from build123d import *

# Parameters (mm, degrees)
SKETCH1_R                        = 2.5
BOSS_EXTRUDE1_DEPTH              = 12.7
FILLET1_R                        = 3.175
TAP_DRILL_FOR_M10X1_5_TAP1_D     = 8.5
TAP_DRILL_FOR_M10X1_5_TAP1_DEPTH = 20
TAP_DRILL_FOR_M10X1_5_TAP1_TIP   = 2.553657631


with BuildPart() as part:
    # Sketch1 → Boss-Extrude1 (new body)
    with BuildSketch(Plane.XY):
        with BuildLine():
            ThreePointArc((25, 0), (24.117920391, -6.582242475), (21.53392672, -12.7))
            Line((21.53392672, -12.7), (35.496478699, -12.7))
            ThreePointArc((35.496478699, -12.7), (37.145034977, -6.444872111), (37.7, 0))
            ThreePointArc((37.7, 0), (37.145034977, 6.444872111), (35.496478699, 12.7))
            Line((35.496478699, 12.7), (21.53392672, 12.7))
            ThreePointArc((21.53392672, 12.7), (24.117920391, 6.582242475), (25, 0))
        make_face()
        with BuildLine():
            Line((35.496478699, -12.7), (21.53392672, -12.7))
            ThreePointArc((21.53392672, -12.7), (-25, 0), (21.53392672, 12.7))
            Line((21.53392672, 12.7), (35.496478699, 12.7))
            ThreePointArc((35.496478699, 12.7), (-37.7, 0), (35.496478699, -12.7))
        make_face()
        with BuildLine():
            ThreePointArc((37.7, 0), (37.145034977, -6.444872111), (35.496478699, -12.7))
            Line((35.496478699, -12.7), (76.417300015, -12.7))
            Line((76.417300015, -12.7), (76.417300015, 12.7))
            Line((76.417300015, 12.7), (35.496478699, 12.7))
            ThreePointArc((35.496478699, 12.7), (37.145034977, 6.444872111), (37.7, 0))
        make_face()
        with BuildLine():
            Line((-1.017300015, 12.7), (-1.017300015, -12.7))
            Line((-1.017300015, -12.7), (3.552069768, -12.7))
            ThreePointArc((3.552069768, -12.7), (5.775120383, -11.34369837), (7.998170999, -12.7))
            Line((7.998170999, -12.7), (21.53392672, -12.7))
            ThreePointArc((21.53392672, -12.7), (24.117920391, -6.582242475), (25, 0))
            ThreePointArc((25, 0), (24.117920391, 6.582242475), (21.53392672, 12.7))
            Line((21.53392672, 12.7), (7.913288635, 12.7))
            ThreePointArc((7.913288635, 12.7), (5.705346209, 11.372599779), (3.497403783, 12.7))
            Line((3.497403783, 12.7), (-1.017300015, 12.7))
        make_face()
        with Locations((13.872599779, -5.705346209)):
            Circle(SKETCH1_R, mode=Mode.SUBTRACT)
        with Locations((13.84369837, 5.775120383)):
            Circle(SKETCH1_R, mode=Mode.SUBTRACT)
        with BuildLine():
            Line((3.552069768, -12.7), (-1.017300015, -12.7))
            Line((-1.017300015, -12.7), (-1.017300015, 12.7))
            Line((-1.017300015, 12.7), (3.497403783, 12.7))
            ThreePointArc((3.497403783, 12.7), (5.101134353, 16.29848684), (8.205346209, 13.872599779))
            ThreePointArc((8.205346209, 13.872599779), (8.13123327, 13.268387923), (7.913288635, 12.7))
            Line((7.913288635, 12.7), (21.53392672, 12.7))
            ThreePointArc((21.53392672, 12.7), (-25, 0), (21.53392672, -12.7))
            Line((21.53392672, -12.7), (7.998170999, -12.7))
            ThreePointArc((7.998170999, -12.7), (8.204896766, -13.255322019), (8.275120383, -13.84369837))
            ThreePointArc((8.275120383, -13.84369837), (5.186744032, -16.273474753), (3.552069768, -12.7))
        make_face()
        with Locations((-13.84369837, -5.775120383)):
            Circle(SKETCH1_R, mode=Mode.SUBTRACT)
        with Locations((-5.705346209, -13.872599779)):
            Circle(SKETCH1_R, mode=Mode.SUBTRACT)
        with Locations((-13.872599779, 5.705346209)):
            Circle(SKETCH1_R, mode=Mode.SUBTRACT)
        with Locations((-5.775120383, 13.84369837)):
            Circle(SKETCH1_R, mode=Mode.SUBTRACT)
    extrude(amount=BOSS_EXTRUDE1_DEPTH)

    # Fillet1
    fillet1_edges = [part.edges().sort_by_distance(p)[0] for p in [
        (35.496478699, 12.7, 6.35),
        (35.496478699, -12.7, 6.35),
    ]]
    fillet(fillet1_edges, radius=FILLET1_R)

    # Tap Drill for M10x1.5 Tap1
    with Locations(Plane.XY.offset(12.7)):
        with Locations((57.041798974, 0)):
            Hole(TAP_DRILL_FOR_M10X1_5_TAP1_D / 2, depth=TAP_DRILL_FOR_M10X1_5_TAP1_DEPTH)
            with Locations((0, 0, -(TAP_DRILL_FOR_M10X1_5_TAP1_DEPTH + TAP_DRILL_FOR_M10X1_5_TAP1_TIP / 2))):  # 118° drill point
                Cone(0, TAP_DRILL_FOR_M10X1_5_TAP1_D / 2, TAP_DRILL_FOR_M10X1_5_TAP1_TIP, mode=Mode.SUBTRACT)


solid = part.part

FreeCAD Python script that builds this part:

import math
import FreeCAD as App
import Part
import Sketcher


def edges_at(feature, points):
    """Names of the edges that pass closest to the given points."""
    edges = feature.Shape.Edges
    near = lambda p: min(range(len(edges)), key=lambda i: edges[i].distToShape(Part.Vertex(*p))[0])
    return sorted({f"Edge{near(p) + 1}" for p in points})

doc = App.newDocument("Part")
body = doc.addObject("PartDesign::Body", "Body")

sketch1 = body.newObject("Sketcher::SketchObject", "Sketch")
sketch1.AttachmentSupport = (doc.getObject("XY_Plane"), [""])
sketch1.MapMode = "FlatFace"
sketch1.addGeometry(Part.LineSegment(App.Vector(76.4, 12.7, 0), App.Vector(35.5, 12.7, 0)), False)
sketch1.addGeometry(Part.ArcOfCircle(Part.Circle(App.Vector(0, 0, 0), App.Vector(0, 0, 1), 37.7), math.radians(20), math.radians(340)), False)
sketch1.addGeometry(Part.LineSegment(App.Vector(35.5, -12.7, 0), App.Vector(76.4, -12.7, 0)), False)
sketch1.addGeometry(Part.LineSegment(App.Vector(76.4, -12.7, 0), App.Vector(76.4, 12.7, 0)), False)
sketch1.addGeometry(Part.Circle(App.Vector(-5.7, -13.9, 0), App.Vector(0, 0, 1), 2.5), False)
sketch1.addGeometry(Part.Circle(App.Vector(-13.8, -5.8, 0), App.Vector(0, 0, 1), 2.5), False)
sketch1.addGeometry(Part.ArcOfCircle(Part.Circle(App.Vector(5.8, -13.8, 0), App.Vector(0, 0, 1), 2.5), math.radians(27), math.radians(153)), False)
sketch1.addGeometry(Part.ArcOfCircle(Part.Circle(App.Vector(5.8, -13.8, 0), App.Vector(0, 0, 1), 2.5), math.radians(0), math.radians(27)), False)
sketch1.addGeometry(Part.ArcOfCircle(Part.Circle(App.Vector(5.8, -13.8, 0), App.Vector(0, 0, 1), 2.5), math.radians(153), math.radians(360)), False)
sketch1.addGeometry(Part.Circle(App.Vector(13.9, -5.7, 0), App.Vector(0, 0, 1), 2.5), False)
sketch1.addGeometry(Part.Circle(App.Vector(-13.9, 5.7, 0), App.Vector(0, 0, 1), 2.5), False)
sketch1.addGeometry(Part.Circle(App.Vector(-5.8, 13.8, 0), App.Vector(0, 0, 1), 2.5), False)
sketch1.addGeometry(Part.Circle(App.Vector(13.8, 5.8, 0), App.Vector(0, 0, 1), 2.5), False)
sketch1.addGeometry(Part.ArcOfCircle(Part.Circle(App.Vector(5.7, 13.9, 0), App.Vector(0, 0, 1), 2.5), math.radians(-152), math.radians(-28)), False)
sketch1.addGeometry(Part.ArcOfCircle(Part.Circle(App.Vector(5.7, 13.9, 0), App.Vector(0, 0, 1), 2.5), math.radians(0), math.radians(208)), False)
sketch1.addGeometry(Part.ArcOfCircle(Part.Circle(App.Vector(5.7, 13.9, 0), App.Vector(0, 0, 1), 2.5), math.radians(-28), math.radians(0)), False)
sketch1.addConstraint(Sketcher.Constraint("Coincident", 0, 2, 1, 1))
sketch1.addConstraint(Sketcher.Constraint("Coincident", 1, 2, 2, 1))
sketch1.addConstraint(Sketcher.Constraint("Coincident", 2, 2, 3, 1))
sketch1.addConstraint(Sketcher.Constraint("Coincident", 3, 2, 0, 1))
sketch1.addConstraint(Sketcher.Constraint("Tangent", 6, 1, 7, 2))
sketch1.addConstraint(Sketcher.Constraint("Tangent", 7, 1, 8, 2))
sketch1.addConstraint(Sketcher.Constraint("Tangent", 8, 1, 6, 2))
sketch1.addConstraint(Sketcher.Constraint("Tangent", 13, 1, 14, 2))
sketch1.addConstraint(Sketcher.Constraint("Tangent", 14, 1, 15, 2))
sketch1.addConstraint(Sketcher.Constraint("Tangent", 15, 1, 13, 2))
sketch1.addConstraint(Sketcher.Constraint("Horizontal", 0))
sketch1.addConstraint(Sketcher.Constraint("Horizontal", 2))
sketch1.addConstraint(Sketcher.Constraint("Vertical", 3))
sketch1.addConstraint(Sketcher.Constraint("Coincident", 1, 3, -1, 1))
sketch1.addConstraint(Sketcher.Constraint("Equal", 4, 5))
sketch1.addConstraint(Sketcher.Constraint("Equal", 5, 6))
sketch1.addConstraint(Sketcher.Constraint("Equal", 8, 9))
sketch1.addConstraint(Sketcher.Constraint("Equal", 9, 10))
sketch1.addConstraint(Sketcher.Constraint("Equal", 10, 11))
sketch1.addConstraint(Sketcher.Constraint("Equal", 11, 12))
sketch1.addConstraint(Sketcher.Constraint("Equal", 12, 13))
sketch1.addConstraint(Sketcher.Constraint("Symmetric", 9, 3, 10, 3, -1, 1))
sketch1.addConstraint(Sketcher.Constraint("Symmetric", 6, 3, 11, 3, -1, 1))
sketch1.addConstraint(Sketcher.Constraint("Symmetric", 5, 3, 12, 3, -1, 1))
sketch1.addConstraint(Sketcher.Constraint("Symmetric", 4, 3, 13, 3, -1, 1))
sketch1.addConstraint(Sketcher.Constraint("Horizontal", 2, 2, 6, 1))
sketch1.addConstraint(Sketcher.Constraint("Horizontal", 8, 3, 7, 1))
sketch1.addConstraint(Sketcher.Constraint("Horizontal", 6, 1, 8, 1))
sketch1.addConstraint(Sketcher.Constraint("Horizontal", 3, 2, 13, 1))
sketch1.addConstraint(Sketcher.Constraint("Horizontal", 15, 3, 14, 1))
sketch1.addConstraint(Sketcher.Constraint("Horizontal", 13, 1, 15, 1))
sketch1.addConstraint(Sketcher.Constraint("Vertical", 0, 2, 1, 2))
sketch1.addConstraint(Sketcher.Constraint("Diameter", 4, 5.0))
sketch1.addConstraint(Sketcher.Constraint("Radius", 1, 37.7))
sketch1.addConstraint(Sketcher.Constraint("DistanceY", 3, 1, 3, 2, 25.4))
sketch1.addConstraint(Sketcher.Constraint("DistanceX", 0, 2, 0, 1, 40.920821))
sketch1.addConstraint(Sketcher.Constraint("DistanceY", 4, 3, -1, 1, 13.8726))
sketch1.addConstraint(Sketcher.Constraint("DistanceX", 5, 3, -1, 1, 13.843698))
sketch1.addConstraint(Sketcher.Constraint("DistanceY", 6, 3, -1, 1, 13.843698))
sketch1.addConstraint(Sketcher.Constraint("DistanceX", -1, 1, 9, 3, 13.8726))
sketch1.addConstraint(Sketcher.Constraint("DistanceY", 5, 3, -1, 1, 5.77512))
sketch1.addConstraint(Sketcher.Constraint("DistanceX", -1, 1, 6, 3, 5.77512))
sketch1.addConstraint(Sketcher.Constraint("DistanceX", -1, 1, 15, 1, 7.913289))
sketch1.addConstraint(Sketcher.Constraint("DistanceY", 9, 3, -1, 1, 5.705346))
pad1 = body.newObject("PartDesign::Pad", "Pad")
pad1.Profile = sketch1
pad1.Length = 12.7
doc.recompute()

fillet = body.newObject("PartDesign::Fillet", "Fillet")
fillet.Base = (pad1, edges_at(pad1, [(35.496, 12.7, 6.35), (35.496, -12.7, 6.35)]))
fillet.Radius = 3.175

sketch2 = body.newObject("Sketcher::SketchObject", "Sketch001")
sketch2.AttachmentSupport = (doc.getObject("XY_Plane"), [""])
sketch2.MapMode = "FlatFace"
sketch2.AttachmentOffset = App.Placement(App.Vector(0, 0, 12.7), App.Rotation())
sketch2.addGeometry(Part.Circle(App.Vector(57, 0, 0), App.Vector(0, 0, 1), 4.2), False)
sketch2.addConstraint(Sketcher.Constraint("PointOnObject", 0, 3, -1))
sketch2.addConstraint(Sketcher.Constraint("Diameter", 0, 8.5))
sketch2.addConstraint(Sketcher.Constraint("DistanceX", -1, 1, 0, 3, 57.041799))
doc.recompute()
hole = body.newObject("PartDesign::Hole", "Hole")
hole.Profile = sketch2
hole.ThreadType = "None"
hole.Diameter = 8.5
hole.DepthType = "Dimension"
hole.Depth = 20
hole.DrillPoint = "Angled"
hole.DrillPointAngle = 118

doc.recompute()
